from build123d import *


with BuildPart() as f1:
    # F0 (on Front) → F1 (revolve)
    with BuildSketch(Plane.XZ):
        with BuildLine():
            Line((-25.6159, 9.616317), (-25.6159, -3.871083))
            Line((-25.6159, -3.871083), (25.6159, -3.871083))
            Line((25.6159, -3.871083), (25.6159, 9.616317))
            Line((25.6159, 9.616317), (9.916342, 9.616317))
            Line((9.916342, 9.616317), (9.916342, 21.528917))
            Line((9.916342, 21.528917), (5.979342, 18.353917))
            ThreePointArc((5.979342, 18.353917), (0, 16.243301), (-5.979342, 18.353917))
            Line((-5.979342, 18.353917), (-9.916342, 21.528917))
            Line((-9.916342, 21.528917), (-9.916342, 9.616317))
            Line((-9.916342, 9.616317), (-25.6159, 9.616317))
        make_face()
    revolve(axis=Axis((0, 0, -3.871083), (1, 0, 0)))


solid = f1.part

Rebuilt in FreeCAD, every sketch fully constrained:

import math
import FreeCAD as App
import Part
import Sketcher
Q = App.Units.Quantity

doc = App.newDocument("Part")
body = doc.addObject("PartDesign::Body", "Body")

# Sketch on XZ plane
sketch1 = body.newObject("Sketcher::SketchObject", "Sketch")
sketch1.AttachmentSupport = (doc.getObject("XZ_Plane"), [""])
sketch1.MapMode = "FlatFace"
sketch1.addGeometry([
    Part.LineSegment(App.Vector(-26, 10, 0), App.Vector(-26, -4, 0)),  # 0
    Part.LineSegment(App.Vector(-26, -4, 0), App.Vector(26, -4, 0)),  # 1
    Part.LineSegment(App.Vector(26, -4, 0), App.Vector(26, 10, 0)),  # 2
    Part.LineSegment(App.Vector(26, 10, 0), App.Vector(10, 10, 0)),  # 3
    Part.LineSegment(App.Vector(10, 10, 0), App.Vector(10, 22, 0)),  # 4
    Part.LineSegment(App.Vector(10, 22, 0), App.Vector(6, 18, 0)),  # 5
    Part.ArcOfCircle(Part.Circle(App.Vector(0, 26, 0), App.Vector(0, 0, 1), 10), math.radians(-129), math.radians(-51)),  # 6
    Part.LineSegment(App.Vector(-6, 18, 0), App.Vector(-10, 22, 0)),  # 7
    Part.LineSegment(App.Vector(-10, 22, 0), App.Vector(-10, 10, 0)),  # 8
    Part.LineSegment(App.Vector(-10, 10, 0), App.Vector(-26, 10, 0)),  # 9
], False)
sketch1.addGeometry(Part.LineSegment(App.Vector(-26, -4, 0), App.Vector(26, -4, 0)), True)  # axis
sketch1.addConstraint([
    Sketcher.Constraint("Coincident", 0, 2, 1, 1),
    Sketcher.Constraint("Coincident", 1, 2, 2, 1),
    Sketcher.Constraint("Coincident", 2, 2, 3, 1),
    Sketcher.Constraint("Coincident", 3, 2, 4, 1),
    Sketcher.Constraint("Coincident", 4, 2, 5, 1),
    Sketcher.Constraint("Tangent", 5, 2, 6, 2),
    Sketcher.Constraint("Tangent", 6, 1, 7, 1),
    Sketcher.Constraint("Coincident", 7, 2, 8, 1),
    Sketcher.Constraint("Coincident", 8, 2, 9, 1),
    Sketcher.Constraint("Coincident", 9, 2, 0, 1),
    Sketcher.Constraint("Vertical", 0),
    Sketcher.Constraint("Horizontal", 1),
    Sketcher.Constraint("Vertical", 2),
    Sketcher.Constraint("Horizontal", 3),
    Sketcher.Constraint("Vertical", 4),
    Sketcher.Constraint("Vertical", 8),
    Sketcher.Constraint("Horizontal", 9),
    Sketcher.Constraint("Horizontal", 10),
    Sketcher.Constraint("Coincident", 10, 1, 0, 2),
    Sketcher.Constraint("Symmetric", 5, 2, 6, 1, -2),
    Sketcher.Constraint("Symmetric", 3, 2, 8, 2, -2),
    Sketcher.Constraint("Vertical", 2, 2, 10, 2),
    Sketcher.Constraint("Equal", 3, 9),
    Sketcher.Constraint("Radius", 6, Q("0.375 in")),
    Sketcher.Constraint("DistanceY", 1, 2, 4, 2, Q("1 in")),
    Sketcher.Constraint("DistanceX", 1, 1, 1, 2, Q("2.017 in")),
    Sketcher.Constraint("DistanceY", 0, 2, 0, 1, Q("0.531 in")),
    Sketcher.Constraint("DistanceX", 5, 2, 4, 2, Q("0.155 in")),
    Sketcher.Constraint("DistanceY", 5, 2, 4, 2, Q("0.125 in")),
    Sketcher.Constraint("DistanceY", -1, 1, 6, 3, Q("1.0145 in")),
])
revolution = body.newObject("PartDesign::Revolution", "Revolution")
revolution.Profile = sketch1
revolution.ReferenceAxis = (sketch1, ["Axis0"])
revolution.Angle = 360

doc.recompute()
